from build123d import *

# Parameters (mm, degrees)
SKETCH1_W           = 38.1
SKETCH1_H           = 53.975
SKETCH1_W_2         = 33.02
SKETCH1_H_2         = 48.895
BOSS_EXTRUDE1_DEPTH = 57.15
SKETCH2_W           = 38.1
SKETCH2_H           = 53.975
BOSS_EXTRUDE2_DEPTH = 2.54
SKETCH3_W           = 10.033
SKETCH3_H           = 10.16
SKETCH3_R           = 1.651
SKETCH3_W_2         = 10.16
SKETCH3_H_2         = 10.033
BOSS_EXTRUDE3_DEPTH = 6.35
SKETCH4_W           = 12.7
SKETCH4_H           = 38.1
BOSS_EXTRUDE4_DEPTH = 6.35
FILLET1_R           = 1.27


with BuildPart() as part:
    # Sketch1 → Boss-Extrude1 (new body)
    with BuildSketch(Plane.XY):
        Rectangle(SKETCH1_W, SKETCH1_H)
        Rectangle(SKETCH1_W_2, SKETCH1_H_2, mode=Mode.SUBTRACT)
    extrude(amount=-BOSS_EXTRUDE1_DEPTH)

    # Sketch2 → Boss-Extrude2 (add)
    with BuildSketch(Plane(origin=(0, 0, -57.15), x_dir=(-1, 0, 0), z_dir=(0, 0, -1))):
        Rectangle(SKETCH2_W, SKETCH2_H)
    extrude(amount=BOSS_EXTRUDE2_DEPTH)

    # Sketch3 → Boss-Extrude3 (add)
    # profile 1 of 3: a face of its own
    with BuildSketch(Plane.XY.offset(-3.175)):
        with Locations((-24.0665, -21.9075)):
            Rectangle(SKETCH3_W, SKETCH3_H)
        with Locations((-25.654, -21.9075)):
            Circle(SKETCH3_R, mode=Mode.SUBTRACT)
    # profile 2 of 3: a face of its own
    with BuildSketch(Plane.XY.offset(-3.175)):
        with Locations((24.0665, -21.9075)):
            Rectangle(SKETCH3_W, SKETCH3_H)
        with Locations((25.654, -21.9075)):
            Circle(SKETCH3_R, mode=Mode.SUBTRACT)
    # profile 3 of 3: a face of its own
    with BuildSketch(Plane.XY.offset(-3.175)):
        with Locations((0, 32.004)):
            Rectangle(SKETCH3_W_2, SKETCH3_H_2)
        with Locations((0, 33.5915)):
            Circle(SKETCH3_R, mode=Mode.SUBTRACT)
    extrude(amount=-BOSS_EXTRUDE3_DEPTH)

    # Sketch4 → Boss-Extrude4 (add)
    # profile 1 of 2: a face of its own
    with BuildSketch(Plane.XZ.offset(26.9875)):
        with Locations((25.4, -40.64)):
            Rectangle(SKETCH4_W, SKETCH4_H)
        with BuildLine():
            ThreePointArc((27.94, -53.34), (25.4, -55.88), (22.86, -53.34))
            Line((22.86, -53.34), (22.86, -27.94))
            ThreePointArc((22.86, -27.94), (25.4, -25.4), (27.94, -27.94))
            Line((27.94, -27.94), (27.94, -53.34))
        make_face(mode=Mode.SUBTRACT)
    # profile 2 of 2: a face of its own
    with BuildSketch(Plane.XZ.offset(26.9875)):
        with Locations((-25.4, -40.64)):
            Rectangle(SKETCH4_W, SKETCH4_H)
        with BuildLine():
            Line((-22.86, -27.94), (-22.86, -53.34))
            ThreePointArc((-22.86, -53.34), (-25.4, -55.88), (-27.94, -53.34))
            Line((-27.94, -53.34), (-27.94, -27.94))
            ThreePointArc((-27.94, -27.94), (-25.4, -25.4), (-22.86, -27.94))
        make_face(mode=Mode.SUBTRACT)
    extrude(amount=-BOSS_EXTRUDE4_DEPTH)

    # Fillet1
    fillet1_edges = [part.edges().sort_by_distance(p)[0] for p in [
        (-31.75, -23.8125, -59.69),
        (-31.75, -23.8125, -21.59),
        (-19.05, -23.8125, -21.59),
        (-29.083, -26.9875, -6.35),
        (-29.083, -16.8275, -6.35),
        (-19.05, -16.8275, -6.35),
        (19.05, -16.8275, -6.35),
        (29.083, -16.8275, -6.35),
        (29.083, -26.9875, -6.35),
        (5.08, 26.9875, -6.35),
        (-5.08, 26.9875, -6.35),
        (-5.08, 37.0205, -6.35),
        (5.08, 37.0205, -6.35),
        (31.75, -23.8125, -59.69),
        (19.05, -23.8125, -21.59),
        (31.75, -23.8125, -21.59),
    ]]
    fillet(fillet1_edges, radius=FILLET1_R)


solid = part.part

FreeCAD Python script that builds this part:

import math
import FreeCAD as App
import Part
import Sketcher

V = App.Vector
Q = App.Units.Quantity


def edges_at(feature, points):
    """Names of the edges that pass closest to the given points."""
    edges = feature.Shape.Edges
    near = lambda p: min(range(len(edges)), key=lambda i: edges[i].distToShape(Part.Vertex(*p))[0])
    return sorted({f"Edge{near(p) + 1}" for p in points})

doc = App.newDocument("Part")
body = doc.addObject("PartDesign::Body", "Body")

sketch1 = doc.addObject("Sketcher::SketchObject", "Sketch")
body.addObject(sketch1)
sketch1.AttachmentSupport = (doc.XY_Plane, [""])
sketch1.MapMode = "FlatFace"
sketch1.addGeometry([
    Part.LineSegment(V(-19, 27, 0), V(-19, -27, 0)),
    Part.LineSegment(V(-19, -27, 0), V(19, -27, 0)),
    Part.LineSegment(V(19, -27, 0), V(19, 27, 0)),
    Part.LineSegment(V(19, 27, 0), V(-19, 27, 0)),
    Part.LineSegment(V(17, -24, 0), V(-17, -24, 0)),
    Part.LineSegment(V(-17, -24, 0), V(-17, 24, 0)),
    Part.LineSegment(V(-17, 24, 0), V(17, 24, 0)),
    Part.LineSegment(V(17, 24, 0), V(17, -24, 0)),
], False)
sketch1.addConstraint([
    Sketcher.Constraint("Coincident", 0, 2, 1, 1),
    Sketcher.Constraint("Coincident", 1, 2, 2, 1),
    Sketcher.Constraint("Coincident", 2, 2, 3, 1),
    Sketcher.Constraint("Coincident", 3, 2, 0, 1),
    Sketcher.Constraint("Coincident", 4, 2, 5, 1),
    Sketcher.Constraint("Coincident", 5, 2, 6, 1),
    Sketcher.Constraint("Coincident", 6, 2, 7, 1),
    Sketcher.Constraint("Coincident", 7, 2, 4, 1),
    Sketcher.Constraint("Vertical", 0),
    Sketcher.Constraint("Horizontal", 1),
    Sketcher.Constraint("Vertical", 2),
    Sketcher.Constraint("Horizontal", 3),
    Sketcher.Constraint("Horizontal", 4),
    Sketcher.Constraint("Vertical", 5),
    Sketcher.Constraint("Horizontal", 6),
    Sketcher.Constraint("Vertical", 7),
    Sketcher.Constraint("Symmetric", 0, 2, 2, 2, -1, 1),
    Sketcher.Constraint("Symmetric", 4, 2, 6, 2, -1, 1),
    Sketcher.Constraint("DistanceX", 1, 1, 1, 2, Q("1.5 in")),
    Sketcher.Constraint("DistanceX", 4, 2, 4, 1, Q("1.3 in")),
    Sketcher.Constraint("DistanceY", 0, 2, 4, 2, Q("0.1 in")),
    Sketcher.Constraint("DistanceY", 0, 2, 0, 1, Q("2.125 in")),
])
pad1 = doc.addObject("PartDesign::Pad", "Pad")
body.addObject(pad1)
pad1.Profile = sketch1
pad1.Length = Q("2.25 in")
pad1.Reversed = True

sketch2 = doc.addObject("Sketcher::SketchObject", "Sketch001")
body.addObject(sketch2)
sketch2.AttachmentSupport = (doc.XY_Plane, [""])
sketch2.MapMode = "FlatFace"
sketch2.AttachmentOffset = App.Placement(V(0, 0, -2.25 * 25.4), App.Rotation())
sketch2.addGeometry([
    Part.LineSegment(V(19, 27, 0), V(19, -27, 0)),
    Part.LineSegment(V(19, -27, 0), V(-19, -27, 0)),
    Part.LineSegment(V(-19, -27, 0), V(-19, 27, 0)),
    Part.LineSegment(V(-19, 27, 0), V(19, 27, 0)),
], False)
sketch2.addConstraint([
    Sketcher.Constraint("Coincident", 0, 2, 1, 1),
    Sketcher.Constraint("Coincident", 1, 2, 2, 1),
    Sketcher.Constraint("Coincident", 2, 2, 3, 1),
    Sketcher.Constraint("Coincident", 3, 2, 0, 1),
    Sketcher.Constraint("Vertical", 0),
    Sketcher.Constraint("Horizontal", 1),
    Sketcher.Constraint("Vertical", 2),
    Sketcher.Constraint("Horizontal", 3),
    Sketcher.Constraint("Symmetric", 0, 2, 2, 2, -1, 1),
    Sketcher.Constraint("DistanceX", 1, 2, 1, 1, Q("1.5 in")),
    Sketcher.Constraint("DistanceY", 0, 2, 0, 1, Q("2.125 in")),
])
pad2 = doc.addObject("PartDesign::Pad", "Pad001")
body.addObject(pad2)
pad2.Profile = sketch2
pad2.Length = Q("0.1 in")
pad2.Reversed = True

sketch3 = doc.addObject("Sketcher::SketchObject", "Sketch002")
body.addObject(sketch3)
sketch3.AttachmentSupport = (doc.XY_Plane, [""])
sketch3.MapMode = "FlatFace"
sketch3.AttachmentOffset = App.Placement(V(0, 0, -0.125 * 25.4), App.Rotation())
sketch3.addGeometry([
    Part.LineSegment(V(-29.1, -16.8, 0), V(-29.1, -27, 0)),
    Part.LineSegment(V(-29.1, -27, 0), V(-19.1, -27, 0)),
    Part.LineSegment(V(-19.1, -27, 0), V(-19.1, -16.8, 0)),
    Part.LineSegment(V(-19.1, -16.8, 0), V(-29.1, -16.8, 0)),
    Part.Circle(V(-25.7, -21.9, 0), V(0, 0, 1), 1.7),
    Part.LineSegment(V(19.1, -16.8, 0), V(19.1, -27, 0)),
    Part.LineSegment(V(19.1, -27, 0), V(29.1, -27, 0)),
    Part.LineSegment(V(29.1, -27, 0), V(29.1, -16.8, 0)),
    Part.LineSegment(V(29.1, -16.8, 0), V(19.1, -16.8, 0)),
    Part.Circle(V(25.7, -21.9, 0), V(0, 0, 1), 1.7),
    Part.LineSegment(V(-5.1, 37, 0), V(-5.1, 27, 0)),
    Part.LineSegment(V(-5.1, 27, 0), V(5.1, 27, 0)),
    Part.LineSegment(V(5.1, 27, 0), V(5.1, 37, 0)),
    Part.LineSegment(V(5.1, 37, 0), V(-5.1, 37, 0)),
    Part.Circle(V(0, 33.6, 0), V(0, 0, 1), 1.7),
], False)
sketch3.addConstraint([
    Sketcher.Constraint("Coincident", 0, 2, 1, 1),
    Sketcher.Constraint("Coincident", 1, 2, 2, 1),
    Sketcher.Constraint("Coincident", 2, 2, 3, 1),
    Sketcher.Constraint("Coincident", 3, 2, 0, 1),
    Sketcher.Constraint("Coincident", 5, 2, 6, 1),
    Sketcher.Constraint("Coincident", 6, 2, 7, 1),
    Sketcher.Constraint("Coincident", 7, 2, 8, 1),
    Sketcher.Constraint("Coincident", 8, 2, 5, 1),
    Sketcher.Constraint("Coincident", 10, 2, 11, 1),
    Sketcher.Constraint("Coincident", 11, 2, 12, 1),
    Sketcher.Constraint("Coincident", 12, 2, 13, 1),
    Sketcher.Constraint("Coincident", 13, 2, 10, 1),
    Sketcher.Constraint("Vertical", 0),
    Sketcher.Constraint("Horizontal", 1),
    Sketcher.Constraint("Vertical", 2),
    Sketcher.Constraint("Horizontal", 3),
    Sketcher.Constraint("Vertical", 5),
    Sketcher.Constraint("Horizontal", 6),
    Sketcher.Constraint("Vertical", 7),
    Sketcher.Constraint("Horizontal", 8),
    Sketcher.Constraint("Vertical", 10),
    Sketcher.Constraint("Horizontal", 11),
    Sketcher.Constraint("Vertical", 12),
    Sketcher.Constraint("Horizontal", 13),
    Sketcher.Constraint("Equal", 4, 9),
    Sketcher.Constraint("Equal", 9, 14),
    Sketcher.Constraint("Symmetric", 4, 3, 9, 3, -2),
    Sketcher.Constraint("Symmetric", 1, 2, 5, 2, -2),
    Sketcher.Constraint("Symmetric", 3, 2, 7, 2, -2),
    Sketcher.Constraint("PointOnObject", 14, 3, -2),
    Sketcher.Constraint("Equal", 13, 0),
    Sketcher.Constraint("Equal", 8, 10),
    Sketcher.Constraint("Diameter", 4, Q("0.13 in")),
    Sketcher.Constraint("DistanceX", 11, 1, 11, 2, Q("0.4 in")),
    Sketcher.Constraint("DistanceX", 10, 2, -1, 1, Q("0.2 in")),
    Sketcher.Constraint("DistanceY", 0, 2, 4, 3, Q("0.2 in")),
    Sketcher.Constraint("DistanceX", 1, 2, 5, 2, Q("1.5 in")),
    Sketcher.Constraint("DistanceX", 1, 1, 1, 2, Q("0.395 in")),
    Sketcher.Constraint("DistanceX", 4, 3, -1, 1, Q("1.01 in")),
    Sketcher.Constraint("DistanceY", 10, 2, 14, 3, Q("0.26 in")),
    Sketcher.Constraint("DistanceY", 8, 2, 12, 2, Q("2.12 in")),
    Sketcher.Constraint("DistanceY", 0, 2, -1, 1, Q("1.0625 in")),
])
pad3 = doc.addObject("PartDesign::Pad", "Pad002")
body.addObject(pad3)
pad3.Profile = sketch3
pad3.Length = Q("0.25 in")
pad3.Reversed = True

sketch4 = doc.addObject("Sketcher::SketchObject", "Sketch003")
body.addObject(sketch4)
sketch4.AttachmentSupport = (doc.XZ_Plane, [""])
sketch4.MapMode = "FlatFace"
sketch4.AttachmentOffset = App.Placement(V(0, 0, 1.0625 * 25.4), App.Rotation())
sketch4.addGeometry([
    Part.LineSegment(V(19.1, -21.6, 0), V(19.1, -59.7, 0)),
    Part.LineSegment(V(19.1, -59.7, 0), V(31.8, -59.7, 0)),
    Part.LineSegment(V(31.8, -59.7, 0), V(31.8, -21.6, 0)),
    Part.LineSegment(V(31.8, -21.6, 0), V(19.1, -21.6, 0)),
    Part.LineSegment(V(27.9, -27.9, 0), V(27.9, -53.3, 0)),
    Part.ArcOfCircle(Part.Circle(V(25.4, -53.3, 0), V(0, 0, 1), 2.5), math.radians(180), math.radians(360)),
    Part.LineSegment(V(22.9, -53.3, 0), V(22.9, -27.9, 0)),
    Part.ArcOfCircle(Part.Circle(V(25.4, -27.9, 0), V(0, 0, 1), 2.5), math.radians(0), math.radians(180)),
    Part.LineSegment(V(-31.8, -21.6, 0), V(-31.8, -59.7, 0)),
    Part.LineSegment(V(-31.8, -59.7, 0), V(-19.1, -59.7, 0)),
    Part.LineSegment(V(-19.1, -59.7, 0), V(-19.1, -21.6, 0)),
    Part.LineSegment(V(-19.1, -21.6, 0), V(-31.8, -21.6, 0)),
    Part.ArcOfCircle(Part.Circle(V(-25.4, -27.9, 0), V(0, 0, 1), 2.5), math.radians(0), math.radians(180)),
    Part.LineSegment(V(-22.9, -27.9, 0), V(-22.9, -53.3, 0)),
    Part.ArcOfCircle(Part.Circle(V(-25.4, -53.3, 0), V(0, 0, 1), 2.5), math.radians(180), math.radians(360)),
    Part.LineSegment(V(-27.9, -53.3, 0), V(-27.9, -27.9, 0)),
], False)
sketch4.addConstraint([
    Sketcher.Constraint("Coincident", 0, 2, 1, 1),
    Sketcher.Constraint("Coincident", 1, 2, 2, 1),
    Sketcher.Constraint("Coincident", 2, 2, 3, 1),
    Sketcher.Constraint("Coincident", 3, 2, 0, 1),
    Sketcher.Constraint("Tangent", 4, 2, 5, 2),
    Sketcher.Constraint("Tangent", 5, 1, 6, 1),
    Sketcher.Constraint("Tangent", 6, 2, 7, 2),
    Sketcher.Constraint("Tangent", 7, 1, 4, 1),
    Sketcher.Constraint("Coincident", 8, 2, 9, 1),
    Sketcher.Constraint("Coincident", 9, 2, 10, 1),
    Sketcher.Constraint("Coincident", 10, 2, 11, 1),
    Sketcher.Constraint("Coincident", 11, 2, 8, 1),
    Sketcher.Constraint("Tangent", 12, 1, 13, 1),
    Sketcher.Constraint("Tangent", 13, 2, 14, 2),
    Sketcher.Constraint("Tangent", 14, 1, 15, 1),
    Sketcher.Constraint("Tangent", 15, 2, 12, 2),
    Sketcher.Constraint("Vertical", 0),
    Sketcher.Constraint("Horizontal", 1),
    Sketcher.Constraint("Vertical", 2),
    Sketcher.Constraint("Horizontal", 3),
    Sketcher.Constraint("Vertical", 4),
    Sketcher.Constraint("Vertical", 6),
    Sketcher.Constraint("Vertical", 8),
    Sketcher.Constraint("Horizontal", 9),
    Sketcher.Constraint("Vertical", 10),
    Sketcher.Constraint("Horizontal", 11),
    Sketcher.Constraint("Vertical", 13),
    Sketcher.Constraint("Vertical", 15),
    Sketcher.Constraint("Equal", 7, 12),
    Sketcher.Constraint("Symmetric", 7, 3, 12, 3, -2),
    Sketcher.Constraint("Symmetric", 1, 2, 8, 2, -2),
    Sketcher.Constraint("Symmetric", 3, 2, 10, 2, -2),
    Sketcher.Constraint("Horizontal", 5, 3, 14, 3),
    Sketcher.Constraint("Radius", 5, Q("0.1 in")),
    Sketcher.Constraint("DistanceY", 4, 2, 4, 1, Q("1 in")),
    Sketcher.Constraint("DistanceX", 1, 1, 1, 2, Q("0.5 in")),
    Sketcher.Constraint("DistanceY", 0, 2, 0, 1, Q("1.5 in")),
    Sketcher.Constraint("DistanceX", -1, 1, 5, 3, Q("1 in")),
    Sketcher.Constraint("DistanceX", 8, 2, 0, 2, Q("2 in")),
    Sketcher.Constraint("DistanceY", 5, 3, -1, 1, Q("2.1 in")),
    Sketcher.Constraint("DistanceY", 0, 2, -1, 1, Q("2.35 in")),
])
pad4 = doc.addObject("PartDesign::Pad", "Pad003")
body.addObject(pad4)
pad4.Profile = sketch4
pad4.Length = Q("0.25 in")
pad4.Reversed = True
doc.recompute()

fillet = doc.addObject("PartDesign::Fillet", "Fillet")
body.addObject(fillet)
fillet.Base = (pad4, edges_at(pad4, [
    (-31.75, -23.812, -59.69),
    (-31.75, -23.812, -21.59),
    (-19.05, -23.812, -21.59),
    (-29.083, -26.988, -6.35),
    (-29.083, -16.828, -6.35),
    (-19.05, -16.828, -6.35),
    (19.05, -16.828, -6.35),
    (29.083, -16.828, -6.35),
    (29.083, -26.988, -6.35),
    (5.08, 26.988, -6.35),
    (-5.08, 26.988, -6.35),
    (-5.08, 37.02, -6.35),
    (5.08, 37.02, -6.35),
    (31.75, -23.812, -59.69),
    (19.05, -23.812, -21.59),
    (31.75, -23.812, -21.59),
]))
fillet.Radius = Q("0.05 in")

doc.recompute()
